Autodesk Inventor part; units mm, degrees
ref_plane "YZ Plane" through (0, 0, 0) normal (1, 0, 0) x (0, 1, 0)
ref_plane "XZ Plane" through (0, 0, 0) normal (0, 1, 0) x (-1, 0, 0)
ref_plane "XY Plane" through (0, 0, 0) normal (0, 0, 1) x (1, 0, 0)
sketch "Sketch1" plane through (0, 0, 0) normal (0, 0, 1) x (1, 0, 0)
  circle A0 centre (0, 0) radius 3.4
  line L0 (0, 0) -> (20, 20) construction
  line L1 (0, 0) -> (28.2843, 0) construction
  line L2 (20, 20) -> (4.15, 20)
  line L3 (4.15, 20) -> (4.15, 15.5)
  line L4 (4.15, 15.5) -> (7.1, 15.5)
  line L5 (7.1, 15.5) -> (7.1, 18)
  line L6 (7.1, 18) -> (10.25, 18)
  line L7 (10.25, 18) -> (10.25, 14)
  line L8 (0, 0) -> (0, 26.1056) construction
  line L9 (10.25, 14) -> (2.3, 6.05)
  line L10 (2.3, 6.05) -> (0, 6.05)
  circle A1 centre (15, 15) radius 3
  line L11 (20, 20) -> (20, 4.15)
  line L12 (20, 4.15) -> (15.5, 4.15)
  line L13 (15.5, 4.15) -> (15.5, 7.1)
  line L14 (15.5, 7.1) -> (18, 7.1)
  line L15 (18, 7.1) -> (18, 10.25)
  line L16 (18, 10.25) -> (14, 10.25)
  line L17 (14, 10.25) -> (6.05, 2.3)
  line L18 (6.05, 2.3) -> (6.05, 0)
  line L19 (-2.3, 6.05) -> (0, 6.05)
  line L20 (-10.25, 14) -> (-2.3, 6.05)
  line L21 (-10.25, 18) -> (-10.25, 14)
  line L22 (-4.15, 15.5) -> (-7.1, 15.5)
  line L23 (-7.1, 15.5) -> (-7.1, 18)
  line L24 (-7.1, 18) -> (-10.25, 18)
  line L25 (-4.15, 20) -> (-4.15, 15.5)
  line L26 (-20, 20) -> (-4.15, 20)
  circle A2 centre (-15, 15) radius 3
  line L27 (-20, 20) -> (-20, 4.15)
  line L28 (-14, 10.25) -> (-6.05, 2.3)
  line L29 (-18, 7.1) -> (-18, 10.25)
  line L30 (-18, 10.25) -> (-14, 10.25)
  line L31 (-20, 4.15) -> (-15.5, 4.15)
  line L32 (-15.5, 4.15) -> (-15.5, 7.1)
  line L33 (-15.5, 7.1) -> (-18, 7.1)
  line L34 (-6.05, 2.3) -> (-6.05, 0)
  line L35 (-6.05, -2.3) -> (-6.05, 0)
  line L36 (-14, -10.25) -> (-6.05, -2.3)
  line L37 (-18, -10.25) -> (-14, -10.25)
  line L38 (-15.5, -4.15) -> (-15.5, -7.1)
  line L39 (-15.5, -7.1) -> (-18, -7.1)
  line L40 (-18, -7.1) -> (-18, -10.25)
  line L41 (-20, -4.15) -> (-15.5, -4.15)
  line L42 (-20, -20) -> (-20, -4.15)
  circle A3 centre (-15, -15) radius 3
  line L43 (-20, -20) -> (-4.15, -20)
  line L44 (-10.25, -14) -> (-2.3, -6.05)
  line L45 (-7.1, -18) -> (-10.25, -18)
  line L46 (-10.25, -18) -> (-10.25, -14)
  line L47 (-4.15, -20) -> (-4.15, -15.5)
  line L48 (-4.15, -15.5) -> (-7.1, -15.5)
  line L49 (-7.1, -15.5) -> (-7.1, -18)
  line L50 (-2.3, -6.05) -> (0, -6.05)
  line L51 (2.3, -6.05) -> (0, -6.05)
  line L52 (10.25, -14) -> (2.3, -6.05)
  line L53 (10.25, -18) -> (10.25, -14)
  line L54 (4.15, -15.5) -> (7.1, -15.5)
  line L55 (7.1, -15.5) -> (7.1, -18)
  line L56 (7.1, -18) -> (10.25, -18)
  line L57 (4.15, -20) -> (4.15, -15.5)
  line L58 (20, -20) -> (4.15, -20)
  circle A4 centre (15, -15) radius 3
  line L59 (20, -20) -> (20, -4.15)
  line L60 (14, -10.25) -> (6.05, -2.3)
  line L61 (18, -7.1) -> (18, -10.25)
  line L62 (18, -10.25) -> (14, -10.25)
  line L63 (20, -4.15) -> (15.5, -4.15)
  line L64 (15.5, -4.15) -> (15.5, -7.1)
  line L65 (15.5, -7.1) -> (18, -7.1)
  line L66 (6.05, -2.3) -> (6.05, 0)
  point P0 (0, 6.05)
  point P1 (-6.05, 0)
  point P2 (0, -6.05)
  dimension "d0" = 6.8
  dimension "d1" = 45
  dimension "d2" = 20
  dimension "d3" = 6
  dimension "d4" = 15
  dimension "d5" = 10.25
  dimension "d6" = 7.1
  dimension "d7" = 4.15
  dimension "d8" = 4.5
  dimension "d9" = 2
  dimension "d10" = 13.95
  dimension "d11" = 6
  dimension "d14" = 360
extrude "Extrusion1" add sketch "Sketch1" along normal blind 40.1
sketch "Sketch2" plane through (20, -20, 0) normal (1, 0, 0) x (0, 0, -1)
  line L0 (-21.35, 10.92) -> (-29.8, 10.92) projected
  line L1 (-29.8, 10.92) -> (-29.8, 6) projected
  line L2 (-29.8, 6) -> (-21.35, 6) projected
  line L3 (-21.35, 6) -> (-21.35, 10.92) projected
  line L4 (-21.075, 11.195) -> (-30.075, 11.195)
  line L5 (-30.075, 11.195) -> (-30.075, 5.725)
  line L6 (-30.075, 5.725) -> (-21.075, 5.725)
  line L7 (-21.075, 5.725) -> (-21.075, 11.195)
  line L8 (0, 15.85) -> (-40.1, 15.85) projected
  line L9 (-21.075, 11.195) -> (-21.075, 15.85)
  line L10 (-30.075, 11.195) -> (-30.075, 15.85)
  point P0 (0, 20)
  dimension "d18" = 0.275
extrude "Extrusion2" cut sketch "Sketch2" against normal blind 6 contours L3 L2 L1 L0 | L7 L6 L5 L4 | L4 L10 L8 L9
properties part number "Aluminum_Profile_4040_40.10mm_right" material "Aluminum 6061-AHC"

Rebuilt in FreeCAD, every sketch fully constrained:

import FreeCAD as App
import Part
import Sketcher

V = App.Vector

doc = App.newDocument("Part")
body = doc.addObject("PartDesign::Body", "Body")

sketch1 = body.newObject("Sketcher::SketchObject", "Sketch")
sketch1.AttachmentSupport = (doc.getObject("XY_Plane"), [""])
sketch1.MapMode = "FlatFace"
sketch1.addGeometry(Part.LineSegment(V(20, 4.2, 0), V(20, 20, 0)), False)
sketch1.addGeometry(Part.LineSegment(V(20, 20, 0), V(4.2, 20, 0)), False)
sketch1.addGeometry(Part.LineSegment(V(4.2, 20, 0), V(4.2, 15.5, 0)), False)
sketch1.addGeometry(Part.LineSegment(V(4.2, 15.5, 0), V(7.1, 15.5, 0)), False)
sketch1.addGeometry(Part.LineSegment(V(7.1, 15.5, 0), V(7.1, 18, 0)), False)
sketch1.addGeometry(Part.LineSegment(V(7.1, 18, 0), V(10.2, 18, 0)), False)
sketch1.addGeometry(Part.LineSegment(V(10.2, 18, 0), V(10.2, 14, 0)), False)
sketch1.addGeometry(Part.LineSegment(V(10.2, 14, 0), V(2.3, 6, 0)), False)
sketch1.addGeometry(Part.LineSegment(V(2.3, 6, 0), V(-2.3, 6, 0)), False)
sketch1.addGeometry(Part.LineSegment(V(-2.3, 6, 0), V(-10.2, 14, 0)), False)
sketch1.addGeometry(Part.LineSegment(V(-10.2, 14, 0), V(-10.2, 18, 0)), False)
sketch1.addGeometry(Part.LineSegment(V(-10.2, 18, 0), V(-7.1, 18, 0)), False)
sketch1.addGeometry(Part.LineSegment(V(-7.1, 18, 0), V(-7.1, 15.5, 0)), False)
sketch1.addGeometry(Part.LineSegment(V(-7.1, 15.5, 0), V(-4.2, 15.5, 0)), False)
sketch1.addGeometry(Part.LineSegment(V(-4.2, 15.5, 0), V(-4.2, 20, 0)), False)
sketch1.addGeometry(Part.LineSegment(V(-4.2, 20, 0), V(-20, 20, 0)), False)
sketch1.addGeometry(Part.LineSegment(V(-20, 20, 0), V(-20, 4.2, 0)), False)
sketch1.addGeometry(Part.LineSegment(V(-20, 4.2, 0), V(-15.5, 4.2, 0)), False)
sketch1.addGeometry(Part.LineSegment(V(-15.5, 4.2, 0), V(-15.5, 7.1, 0)), False)
sketch1.addGeometry(Part.LineSegment(V(-15.5, 7.1, 0), V(-18, 7.1, 0)), False)
sketch1.addGeometry(Part.LineSegment(V(-18, 7.1, 0), V(-18, 10.2, 0)), False)
sketch1.addGeometry(Part.LineSegment(V(-18, 10.2, 0), V(-14, 10.2, 0)), False)
sketch1.addGeometry(Part.LineSegment(V(-14, 10.2, 0), V(-6, 2.3, 0)), False)
sketch1.addGeometry(Part.LineSegment(V(-6, 2.3, 0), V(-6, -2.3, 0)), False)
sketch1.addGeometry(Part.LineSegment(V(-6, -2.3, 0), V(-14, -10.2, 0)), False)
sketch1.addGeometry(Part.LineSegment(V(-14, -10.2, 0), V(-18, -10.2, 0)), False)
sketch1.addGeometry(Part.LineSegment(V(-18, -10.2, 0), V(-18, -7.1, 0)), False)
sketch1.addGeometry(Part.LineSegment(V(-18, -7.1, 0), V(-15.5, -7.1, 0)), False)
sketch1.addGeometry(Part.LineSegment(V(-15.5, -7.1, 0), V(-15.5, -4.2, 0)), False)
sketch1.addGeometry(Part.LineSegment(V(-15.5, -4.2, 0), V(-20, -4.2, 0)), False)
sketch1.addGeometry(Part.LineSegment(V(-20, -4.2, 0), V(-20, -20, 0)), False)
sketch1.addGeometry(Part.LineSegment(V(-20, -20, 0), V(-4.2, -20, 0)), False)
sketch1.addGeometry(Part.LineSegment(V(-4.2, -20, 0), V(-4.2, -15.5, 0)), False)
sketch1.addGeometry(Part.LineSegment(V(-4.2, -15.5, 0), V(-7.1, -15.5, 0)), False)
sketch1.addGeometry(Part.LineSegment(V(-7.1, -15.5, 0), V(-7.1, -18, 0)), False)
sketch1.addGeometry(Part.LineSegment(V(-7.1, -18, 0), V(-10.2, -18, 0)), False)
sketch1.addGeometry(Part.LineSegment(V(-10.2, -18, 0), V(-10.2, -14, 0)), False)
sketch1.addGeometry(Part.LineSegment(V(-10.2, -14, 0), V(-2.3, -6, 0)), False)
sketch1.addGeometry(Part.LineSegment(V(-2.3, -6, 0), V(2.3, -6, 0)), False)
sketch1.addGeometry(Part.LineSegment(V(2.3, -6, 0), V(10.2, -14, 0)), False)
sketch1.addGeometry(Part.LineSegment(V(10.2, -14, 0), V(10.2, -18, 0)), False)
sketch1.addGeometry(Part.LineSegment(V(10.2, -18, 0), V(7.1, -18, 0)), False)
sketch1.addGeometry(Part.LineSegment(V(7.1, -18, 0), V(7.1, -15.5, 0)), False)
sketch1.addGeometry(Part.LineSegment(V(7.1, -15.5, 0), V(4.2, -15.5, 0)), False)
sketch1.addGeometry(Part.LineSegment(V(4.2, -15.5, 0), V(4.2, -20, 0)), False)
sketch1.addGeometry(Part.LineSegment(V(4.2, -20, 0), V(20, -20, 0)), False)
sketch1.addGeometry(Part.LineSegment(V(20, -20, 0), V(20, -4.2, 0)), False)
sketch1.addGeometry(Part.LineSegment(V(20, -4.2, 0), V(15.5, -4.2, 0)), False)
sketch1.addGeometry(Part.LineSegment(V(15.5, -4.2, 0), V(15.5, -7.1, 0)), False)
sketch1.addGeometry(Part.LineSegment(V(15.5, -7.1, 0), V(18, -7.1, 0)), False)
sketch1.addGeometry(Part.LineSegment(V(18, -7.1, 0), V(18, -10.2, 0)), False)
sketch1.addGeometry(Part.LineSegment(V(18, -10.2, 0), V(14, -10.2, 0)), False)
sketch1.addGeometry(Part.LineSegment(V(14, -10.2, 0), V(6, -2.3, 0)), False)
sketch1.addGeometry(Part.LineSegment(V(6, -2.3, 0), V(6, 2.3, 0)), False)
sketch1.addGeometry(Part.LineSegment(V(6, 2.3, 0), V(14, 10.2, 0)), False)
sketch1.addGeometry(Part.LineSegment(V(14, 10.2, 0), V(18, 10.2, 0)), False)
sketch1.addGeometry(Part.LineSegment(V(18, 10.2, 0), V(18, 7.1, 0)), False)
sketch1.addGeometry(Part.LineSegment(V(18, 7.1, 0), V(15.5, 7.1, 0)), False)
sketch1.addGeometry(Part.LineSegment(V(15.5, 7.1, 0), V(15.5, 4.2, 0)), False)
sketch1.addGeometry(Part.LineSegment(V(15.5, 4.2, 0), V(20, 4.2, 0)), False)
sketch1.addGeometry(Part.Circle(V(-15, -15, 0), V(0, 0, 1), 3), False)
sketch1.addGeometry(Part.Circle(V(15, -15, 0), V(0, 0, 1), 3), False)
sketch1.addGeometry(Part.Circle(V(-15, 15, 0), V(0, 0, 1), 3), False)
sketch1.addGeometry(Part.Circle(V(0, 0, 0), V(0, 0, 1), 3.4), False)
sketch1.addGeometry(Part.Circle(V(15, 15, 0), V(0, 0, 1), 3), False)
sketch1.addConstraint(Sketcher.Constraint("Coincident", 0, 2, 1, 1))
sketch1.addConstraint(Sketcher.Constraint("Coincident", 1, 2, 2, 1))
sketch1.addConstraint(Sketcher.Constraint("Coincident", 2, 2, 3, 1))
sketch1.addConstraint(Sketcher.Constraint("Coincident", 3, 2, 4, 1))
sketch1.addConstraint(Sketcher.Constraint("Coincident", 4, 2, 5, 1))
sketch1.addConstraint(Sketcher.Constraint("Coincident", 5, 2, 6, 1))
sketch1.addConstraint(Sketcher.Constraint("Coincident", 6, 2, 7, 1))
sketch1.addConstraint(Sketcher.Constraint("Coincident", 7, 2, 8, 1))
sketch1.addConstraint(Sketcher.Constraint("Coincident", 8, 2, 9, 1))
sketch1.addConstraint(Sketcher.Constraint("Coincident", 9, 2, 10, 1))
sketch1.addConstraint(Sketcher.Constraint("Coincident", 10, 2, 11, 1))
sketch1.addConstraint(Sketcher.Constraint("Coincident", 11, 2, 12, 1))
sketch1.addConstraint(Sketcher.Constraint("Coincident", 12, 2, 13, 1))
sketch1.addConstraint(Sketcher.Constraint("Coincident", 13, 2, 14, 1))
sketch1.addConstraint(Sketcher.Constraint("Coincident", 14, 2, 15, 1))
sketch1.addConstraint(Sketcher.Constraint("Coincident", 15, 2, 16, 1))
sketch1.addConstraint(Sketcher.Constraint("Coincident", 16, 2, 17, 1))
sketch1.addConstraint(Sketcher.Constraint("Coincident", 17, 2, 18, 1))
sketch1.addConstraint(Sketcher.Constraint("Coincident", 18, 2, 19, 1))
sketch1.addConstraint(Sketcher.Constraint("Coincident", 19, 2, 20, 1))
sketch1.addConstraint(Sketcher.Constraint("Coincident", 20, 2, 21, 1))
sketch1.addConstraint(Sketcher.Constraint("Coincident", 21, 2, 22, 1))
sketch1.addConstraint(Sketcher.Constraint("Coincident", 22, 2, 23, 1))
sketch1.addConstraint(Sketcher.Constraint("Coincident", 23, 2, 24, 1))
sketch1.addConstraint(Sketcher.Constraint("Coincident", 24, 2, 25, 1))
sketch1.addConstraint(Sketcher.Constraint("Coincident", 25, 2, 26, 1))
sketch1.addConstraint(Sketcher.Constraint("Coincident", 26, 2, 27, 1))
sketch1.addConstraint(Sketcher.Constraint("Coincident", 27, 2, 28, 1))
sketch1.addConstraint(Sketcher.Constraint("Coincident", 28, 2, 29, 1))
sketch1.addConstraint(Sketcher.Constraint("Coincident", 29, 2, 30, 1))
sketch1.addConstraint(Sketcher.Constraint("Coincident", 30, 2, 31, 1))
sketch1.addConstraint(Sketcher.Constraint("Coincident", 31, 2, 32, 1))
sketch1.addConstraint(Sketcher.Constraint("Coincident", 32, 2, 33, 1))
sketch1.addConstraint(Sketcher.Constraint("Coincident", 33, 2, 34, 1))
sketch1.addConstraint(Sketcher.Constraint("Coincident", 34, 2, 35, 1))
sketch1.addConstraint(Sketcher.Constraint("Coincident", 35, 2, 36, 1))
sketch1.addConstraint(Sketcher.Constraint("Coincident", 36, 2, 37, 1))
sketch1.addConstraint(Sketcher.Constraint("Coincident", 37, 2, 38, 1))
sketch1.addConstraint(Sketcher.Constraint("Coincident", 38, 2, 39, 1))
sketch1.addConstraint(Sketcher.Constraint("Coincident", 39, 2, 40, 1))
sketch1.addConstraint(Sketcher.Constraint("Coincident", 40, 2, 41, 1))
sketch1.addConstraint(Sketcher.Constraint("Coincident", 41, 2, 42, 1))
sketch1.addConstraint(Sketcher.Constraint("Coincident", 42, 2, 43, 1))
sketch1.addConstraint(Sketcher.Constraint("Coincident", 43, 2, 44, 1))
sketch1.addConstraint(Sketcher.Constraint("Coincident", 44, 2, 45, 1))
sketch1.addConstraint(Sketcher.Constraint("Coincident", 45, 2, 46, 1))
sketch1.addConstraint(Sketcher.Constraint("Coincident", 46, 2, 47, 1))
sketch1.addConstraint(Sketcher.Constraint("Coincident", 47, 2, 48, 1))
sketch1.addConstraint(Sketcher.Constraint("Coincident", 48, 2, 49, 1))
sketch1.addConstraint(Sketcher.Constraint("Coincident", 49, 2, 50, 1))
sketch1.addConstraint(Sketcher.Constraint("Coincident", 50, 2, 51, 1))
sketch1.addConstraint(Sketcher.Constraint("Coincident", 51, 2, 52, 1))
sketch1.addConstraint(Sketcher.Constraint("Coincident", 52, 2, 53, 1))
sketch1.addConstraint(Sketcher.Constraint("Coincident", 53, 2, 54, 1))
sketch1.addConstraint(Sketcher.Constraint("Coincident", 54, 2, 55, 1))
sketch1.addConstraint(Sketcher.Constraint("Coincident", 55, 2, 56, 1))
sketch1.addConstraint(Sketcher.Constraint("Coincident", 56, 2, 57, 1))
sketch1.addConstraint(Sketcher.Constraint("Coincident", 57, 2, 58, 1))
sketch1.addConstraint(Sketcher.Constraint("Coincident", 58, 2, 59, 1))
sketch1.addConstraint(Sketcher.Constraint("Coincident", 59, 2, 0, 1))
sketch1.addConstraint(Sketcher.Constraint("Vertical", 0))
sketch1.addConstraint(Sketcher.Constraint("Horizontal", 1))
sketch1.addConstraint(Sketcher.Constraint("Vertical", 2))
sketch1.addConstraint(Sketcher.Constraint("Horizontal", 3))
sketch1.addConstraint(Sketcher.Constraint("Vertical", 4))
sketch1.addConstraint(Sketcher.Constraint("Horizontal", 5))
sketch1.addConstraint(Sketcher.Constraint("Vertical", 6))
sketch1.addConstraint(Sketcher.Constraint("Horizontal", 8))
sketch1.addConstraint(Sketcher.Constraint("Vertical", 10))
sketch1.addConstraint(Sketcher.Constraint("Horizontal", 11))
sketch1.addConstraint(Sketcher.Constraint("Vertical", 12))
sketch1.addConstraint(Sketcher.Constraint("Horizontal", 13))
sketch1.addConstraint(Sketcher.Constraint("Vertical", 14))
sketch1.addConstraint(Sketcher.Constraint("Horizontal", 15))
sketch1.addConstraint(Sketcher.Constraint("Vertical", 16))
sketch1.addConstraint(Sketcher.Constraint("Horizontal", 17))
sketch1.addConstraint(Sketcher.Constraint("Vertical", 18))
sketch1.addConstraint(Sketcher.Constraint("Horizontal", 19))
sketch1.addConstraint(Sketcher.Constraint("Vertical", 20))
sketch1.addConstraint(Sketcher.Constraint("Horizontal", 21))
sketch1.addConstraint(Sketcher.Constraint("Vertical", 23))
sketch1.addConstraint(Sketcher.Constraint("Horizontal", 25))
sketch1.addConstraint(Sketcher.Constraint("Vertical", 26))
sketch1.addConstraint(Sketcher.Constraint("Horizontal", 27))
sketch1.addConstraint(Sketcher.Constraint("Vertical", 28))
sketch1.addConstraint(Sketcher.Constraint("Horizontal", 29))
sketch1.addConstraint(Sketcher.Constraint("Vertical", 30))
sketch1.addConstraint(Sketcher.Constraint("Horizontal", 31))
sketch1.addConstraint(Sketcher.Constraint("Vertical", 32))
sketch1.addConstraint(Sketcher.Constraint("Horizontal", 33))
sketch1.addConstraint(Sketcher.Constraint("Vertical", 34))
sketch1.addConstraint(Sketcher.Constraint("Horizontal", 35))
sketch1.addConstraint(Sketcher.Constraint("Vertical", 36))
sketch1.addConstraint(Sketcher.Constraint("Horizontal", 38))
sketch1.addConstraint(Sketcher.Constraint("Vertical", 40))
sketch1.addConstraint(Sketcher.Constraint("Horizontal", 41))
sketch1.addConstraint(Sketcher.Constraint("Vertical", 42))
sketch1.addConstraint(Sketcher.Constraint("Horizontal", 43))
sketch1.addConstraint(Sketcher.Constraint("Vertical", 44))
sketch1.addConstraint(Sketcher.Constraint("Horizontal", 45))
sketch1.addConstraint(Sketcher.Constraint("Vertical", 46))
sketch1.addConstraint(Sketcher.Constraint("Horizontal", 47))
sketch1.addConstraint(Sketcher.Constraint("Vertical", 48))
sketch1.addConstraint(Sketcher.Constraint("Horizontal", 49))
sketch1.addConstraint(Sketcher.Constraint("Vertical", 50))
sketch1.addConstraint(Sketcher.Constraint("Horizontal", 51))
sketch1.addConstraint(Sketcher.Constraint("Vertical", 53))
sketch1.addConstraint(Sketcher.Constraint("Horizontal", 55))
sketch1.addConstraint(Sketcher.Constraint("Vertical", 56))
sketch1.addConstraint(Sketcher.Constraint("Horizontal", 57))
sketch1.addConstraint(Sketcher.Constraint("Vertical", 58))
sketch1.addConstraint(Sketcher.Constraint("Horizontal", 59))
sketch1.addConstraint(Sketcher.Constraint("Coincident", 63, 3, -1, 1))
sketch1.addConstraint(Sketcher.Constraint("Equal", 60, 61))
sketch1.addConstraint(Sketcher.Constraint("Equal", 61, 62))
sketch1.addConstraint(Sketcher.Constraint("Equal", 62, 64))
sketch1.addConstraint(Sketcher.Constraint("Symmetric", 61, 3, 62, 3, -1, 1))
sketch1.addConstraint(Sketcher.Constraint("Symmetric", 60, 3, 64, 3, -1, 1))
sketch1.addConstraint(Sketcher.Constraint("Symmetric", 0, 2, 30, 2, -1, 1))
sketch1.addConstraint(Sketcher.Constraint("Symmetric", 2, 2, 32, 2, -1, 1))
sketch1.addConstraint(Sketcher.Constraint("Symmetric", 4, 2, 34, 2, -1, 1))
sketch1.addConstraint(Sketcher.Constraint("Symmetric", 6, 2, 36, 2, -1, 1))
sketch1.addConstraint(Sketcher.Constraint("Symmetric", 7, 2, 37, 2, -1, 1))
sketch1.addConstraint(Sketcher.Constraint("Symmetric", 9, 2, 39, 2, -1, 1))
sketch1.addConstraint(Sketcher.Constraint("Symmetric", 11, 2, 41, 2, -1, 1))
sketch1.addConstraint(Sketcher.Constraint("Symmetric", 13, 2, 43, 2, -1, 1))
sketch1.addConstraint(Sketcher.Constraint("Symmetric", 15, 2, 45, 2, -1, 1))
sketch1.addConstraint(Sketcher.Constraint("Symmetric", 17, 2, 47, 2, -1, 1))
sketch1.addConstraint(Sketcher.Constraint("Symmetric", 19, 2, 49, 2, -1, 1))
sketch1.addConstraint(Sketcher.Constraint("Symmetric", 21, 2, 51, 2, -1, 1))
sketch1.addConstraint(Sketcher.Constraint("Symmetric", 22, 2, 52, 2, -1, 1))
sketch1.addConstraint(Sketcher.Constraint("Symmetric", 24, 2, 54, 2, -1, 1))
sketch1.addConstraint(Sketcher.Constraint("Symmetric", 26, 2, 56, 2, -1, 1))
sketch1.addConstraint(Sketcher.Constraint("Symmetric", 28, 2, 58, 2, -1, 1))
sketch1.addConstraint(Sketcher.Constraint("Symmetric", 60, 3, 61, 3, -2))
sketch1.addConstraint(Sketcher.Constraint("Symmetric", 6, 2, 9, 2, -2))
sketch1.addConstraint(Sketcher.Constraint("Symmetric", 4, 2, 11, 2, -2))
sketch1.addConstraint(Sketcher.Constraint("Symmetric", 2, 2, 13, 2, -2))
sketch1.addConstraint(Sketcher.Constraint("Symmetric", 0, 2, 15, 2, -2))
sketch1.addConstraint(Sketcher.Constraint("Symmetric", 28, 2, 47, 2, -2))
sketch1.addConstraint(Sketcher.Constraint("Symmetric", 26, 2, 49, 2, -2))
sketch1.addConstraint(Sketcher.Constraint("Symmetric", 24, 2, 51, 2, -2))
sketch1.addConstraint(Sketcher.Constraint("Perpendicular", 7, 9))
sketch1.addConstraint(Sketcher.Constraint("Parallel", 9, 22))
sketch1.addConstraint(Sketcher.Constraint("Perpendicular", 22, 24))
sketch1.addConstraint(Sketcher.Constraint("Perpendicular", 37, 39))
sketch1.addConstraint(Sketcher.Constraint("Perpendicular", 52, 54))
sketch1.addConstraint(Sketcher.Constraint("Horizontal", 23, 2, 52, 2))
sketch1.addConstraint(Sketcher.Constraint("Equal", 45, 0))
sketch1.addConstraint(Sketcher.Constraint("Equal", 59, 2))
sketch1.addConstraint(Sketcher.Constraint("Equal", 57, 4))
sketch1.addConstraint(Sketcher.Constraint("Equal", 55, 6))
sketch1.addConstraint(Sketcher.Constraint("Equal", 43, 18))
sketch1.addConstraint(Sketcher.Constraint("Equal", 41, 20))
sketch1.addConstraint(Sketcher.Constraint("Equal", 38, 23))
sketch1.addConstraint(Sketcher.Constraint("Equal", 9, 22))
sketch1.addConstraint(Sketcher.Constraint("Diameter", 60, 6.0))
sketch1.addConstraint(Sketcher.Constraint("Diameter", 63, 6.8))
sketch1.addConstraint(Sketcher.Constraint("DistanceX", 17, 1, 17, 2, 4.5))
sketch1.addConstraint(Sketcher.Constraint("DistanceX", 60, 3, -1, 1, 15.0))
sketch1.addConstraint(Sketcher.Constraint("DistanceY", 60, 3, -1, 1, 15.0))
sketch1.addConstraint(Sketcher.Constraint("DistanceX", -1, 1, 0, 2, 20.0))
sketch1.addConstraint(Sketcher.Constraint("DistanceX", -1, 1, 3, 2, 7.1))
sketch1.addConstraint(Sketcher.Constraint("DistanceX", 21, 1, 21, 2, 4.0))
sketch1.addConstraint(Sketcher.Constraint("DistanceX", -1, 1, 1, 2, 4.15))
sketch1.addConstraint(Sketcher.Constraint("DistanceX", -1, 1, 5, 2, 10.25))
sketch1.addConstraint(Sketcher.Constraint("DistanceX", 8, 2, 8, 1, 4.6))
sketch1.addConstraint(Sketcher.Constraint("DistanceX", 19, 2, 19, 1, 2.5))
pad1 = body.newObject("PartDesign::Pad", "Pad")
pad1.Profile = sketch1
pad1.Length = 40.1

sketch2 = body.newObject("Sketcher::SketchObject", "Sketch001")
sketch2.AttachmentSupport = (doc.getObject("YZ_Plane"), [""])
sketch2.MapMode = "FlatFace"
sketch2.AttachmentOffset = App.Placement(V(0, 0, 20), App.Rotation())
sketch2.addGeometry(Part.LineSegment(V(-14, 21, 0), V(-4, 21, 0)), False)
sketch2.addGeometry(Part.LineSegment(V(-4, 21, 0), V(-4, 30, 0)), False)
sketch2.addGeometry(Part.LineSegment(V(-4, 30, 0), V(-14, 30, 0)), False)
sketch2.addGeometry(Part.LineSegment(V(-14, 30, 0), V(-14, 21, 0)), False)
sketch2.addConstraint(Sketcher.Constraint("Coincident", 0, 2, 1, 1))
sketch2.addConstraint(Sketcher.Constraint("Coincident", 1, 2, 2, 1))
sketch2.addConstraint(Sketcher.Constraint("Coincident", 2, 2, 3, 1))
sketch2.addConstraint(Sketcher.Constraint("Coincident", 3, 2, 0, 1))
sketch2.addConstraint(Sketcher.Constraint("Horizontal", 0))
sketch2.addConstraint(Sketcher.Constraint("Vertical", 1))
sketch2.addConstraint(Sketcher.Constraint("Horizontal", 2))
sketch2.addConstraint(Sketcher.Constraint("Vertical", 3))
sketch2.addConstraint(Sketcher.Constraint("DistanceY", 1, 1, 1, 2, 9.0))
sketch2.addConstraint(Sketcher.Constraint("DistanceX", 0, 1, 0, 2, 10.125))
sketch2.addConstraint(Sketcher.Constraint("DistanceX", 0, 2, -1, 1, 4.15))
sketch2.addConstraint(Sketcher.Constraint("DistanceY", -1, 1, 0, 2, 21.075))
pocket1 = body.newObject("PartDesign::Pocket", "Pocket")
pocket1.Profile = sketch2
pocket1.Length = 6

doc.recompute()
